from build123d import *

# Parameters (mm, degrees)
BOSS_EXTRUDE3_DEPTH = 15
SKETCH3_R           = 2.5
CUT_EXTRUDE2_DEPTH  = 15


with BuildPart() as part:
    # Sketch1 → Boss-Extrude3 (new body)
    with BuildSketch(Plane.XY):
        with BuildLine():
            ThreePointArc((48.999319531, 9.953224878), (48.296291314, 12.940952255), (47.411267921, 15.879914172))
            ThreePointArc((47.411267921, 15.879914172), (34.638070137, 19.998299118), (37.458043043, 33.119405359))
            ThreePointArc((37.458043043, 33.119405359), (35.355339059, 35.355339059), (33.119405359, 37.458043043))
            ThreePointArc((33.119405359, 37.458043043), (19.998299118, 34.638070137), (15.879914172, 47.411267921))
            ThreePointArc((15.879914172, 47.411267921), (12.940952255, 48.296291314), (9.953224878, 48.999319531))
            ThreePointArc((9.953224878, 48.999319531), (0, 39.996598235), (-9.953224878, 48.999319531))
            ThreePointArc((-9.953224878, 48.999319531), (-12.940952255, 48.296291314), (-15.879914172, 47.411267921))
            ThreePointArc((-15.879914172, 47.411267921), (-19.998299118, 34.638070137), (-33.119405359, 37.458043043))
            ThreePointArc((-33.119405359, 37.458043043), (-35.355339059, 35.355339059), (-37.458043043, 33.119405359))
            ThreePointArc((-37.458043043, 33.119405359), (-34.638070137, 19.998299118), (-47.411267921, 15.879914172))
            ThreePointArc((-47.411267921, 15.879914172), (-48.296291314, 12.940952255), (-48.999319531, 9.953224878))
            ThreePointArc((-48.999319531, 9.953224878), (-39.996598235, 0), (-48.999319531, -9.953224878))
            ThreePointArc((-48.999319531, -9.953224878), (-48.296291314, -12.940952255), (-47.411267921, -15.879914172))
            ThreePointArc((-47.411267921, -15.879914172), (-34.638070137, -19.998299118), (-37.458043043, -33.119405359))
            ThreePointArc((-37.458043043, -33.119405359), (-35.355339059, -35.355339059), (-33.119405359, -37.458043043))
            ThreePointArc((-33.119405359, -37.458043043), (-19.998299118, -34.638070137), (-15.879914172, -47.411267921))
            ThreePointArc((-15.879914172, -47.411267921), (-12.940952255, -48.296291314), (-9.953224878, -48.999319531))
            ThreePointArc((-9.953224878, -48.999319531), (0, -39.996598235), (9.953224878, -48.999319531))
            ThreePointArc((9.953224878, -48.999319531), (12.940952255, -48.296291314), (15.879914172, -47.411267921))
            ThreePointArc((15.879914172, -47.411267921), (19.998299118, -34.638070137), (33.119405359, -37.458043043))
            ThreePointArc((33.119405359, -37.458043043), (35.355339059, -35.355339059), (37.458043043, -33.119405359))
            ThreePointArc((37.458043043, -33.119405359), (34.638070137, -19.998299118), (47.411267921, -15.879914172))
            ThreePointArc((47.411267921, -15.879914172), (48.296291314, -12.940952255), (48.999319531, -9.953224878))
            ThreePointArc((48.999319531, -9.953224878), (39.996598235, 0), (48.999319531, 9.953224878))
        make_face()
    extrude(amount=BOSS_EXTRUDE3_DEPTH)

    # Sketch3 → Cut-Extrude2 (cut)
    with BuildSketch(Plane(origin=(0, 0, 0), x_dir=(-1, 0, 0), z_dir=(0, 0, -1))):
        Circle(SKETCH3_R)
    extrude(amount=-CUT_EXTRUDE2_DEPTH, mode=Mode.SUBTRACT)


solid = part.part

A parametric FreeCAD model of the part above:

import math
import FreeCAD as App
import Part
import Sketcher
from FreeCAD import Vector

doc = App.newDocument("Part")
params = doc.addObject("Spreadsheet::Sheet", "Params")
for row, (alias, value) in enumerate([
    ("sketch1_radius", "50 mm"),
    ("pad1_length", "15 mm"),
    ("sketch2_diameter", "5 mm"),
    ("pocket1_length", "15 mm"),
], start=1):
    params.set(f"A{row}", alias)
    params.set(f"B{row}", "=" + value)
    params.setAlias(f"B{row}", alias)

body = doc.addObject("PartDesign::Body", "Body")

# Sketch on XY plane
sketch1 = body.newObject("Sketcher::SketchObject", "Sketch")
sketch1.AttachmentSupport = (doc.getObject("XY_Plane"), [""])
sketch1.MapMode = "FlatFace"
sketch1.addGeometry([
    Part.ArcOfCircle(Part.Circle(Vector(0, 0, 0), Vector(0, 0, 1), 50), math.radians(11.48), math.radians(18.52)),  # 0
    Part.ArcOfCircle(Part.Circle(Vector(43, 25, 0), Vector(0, 0, 1), 10), math.radians(126), math.radians(294)),  # 1
    Part.ArcOfCircle(Part.Circle(Vector(0, 0, 0), Vector(0, 0, 1), 50), math.radians(41.48), math.radians(48.52)),  # 2
    Part.ArcOfCircle(Part.Circle(Vector(25, 43, 0), Vector(0, 0, 1), 10), math.radians(156), math.radians(324)),  # 3
    Part.ArcOfCircle(Part.Circle(Vector(0, 0, 0), Vector(0, 0, 1), 50), math.radians(71.48), math.radians(78.52)),  # 4
    Part.ArcOfCircle(Part.Circle(Vector(0, 50, 0), Vector(0, 0, 1), 10), math.radians(-174), math.radians(-6)),  # 5
    Part.ArcOfCircle(Part.Circle(Vector(0, 0, 0), Vector(0, 0, 1), 50), math.radians(101.48), math.radians(108.52)),  # 6
    Part.ArcOfCircle(Part.Circle(Vector(-25, 43, 0), Vector(0, 0, 1), 10), math.radians(-144), math.radians(24)),  # 7
    Part.ArcOfCircle(Part.Circle(Vector(0, 0, 0), Vector(0, 0, 1), 50), math.radians(131.48), math.radians(138.52)),  # 8
    Part.ArcOfCircle(Part.Circle(Vector(-43, 25, 0), Vector(0, 0, 1), 10), math.radians(-114), math.radians(54)),  # 9
    Part.ArcOfCircle(Part.Circle(Vector(0, 0, 0), Vector(0, 0, 1), 50), math.radians(161.48), math.radians(168.52)),  # 10
    Part.ArcOfCircle(Part.Circle(Vector(-50, 0, 0), Vector(0, 0, 1), 10), math.radians(-84), math.radians(84)),  # 11
    Part.ArcOfCircle(Part.Circle(Vector(0, 0, 0), Vector(0, 0, 1), 50), math.radians(-168.52), math.radians(-161.48)),  # 12
    Part.ArcOfCircle(Part.Circle(Vector(-43, -25, 0), Vector(0, 0, 1), 10), math.radians(-54), math.radians(114)),  # 13
    Part.ArcOfCircle(Part.Circle(Vector(0, 0, 0), Vector(0, 0, 1), 50), math.radians(-138.52), math.radians(-131.48)),  # 14
    Part.ArcOfCircle(Part.Circle(Vector(-25, -43, 0), Vector(0, 0, 1), 10), math.radians(-24), math.radians(144)),  # 15
    Part.ArcOfCircle(Part.Circle(Vector(0, 0, 0), Vector(0, 0, 1), 50), math.radians(-108.52), math.radians(-101.48)),  # 16
    Part.ArcOfCircle(Part.Circle(Vector(0, -50, 0), Vector(0, 0, 1), 10), math.radians(6), math.radians(174)),  # 17
    Part.ArcOfCircle(Part.Circle(Vector(0, 0, 0), Vector(0, 0, 1), 50), math.radians(-78.52), math.radians(-71.48)),  # 18
    Part.ArcOfCircle(Part.Circle(Vector(25, -43, 0), Vector(0, 0, 1), 10), math.radians(36), math.radians(204)),  # 19
    Part.ArcOfCircle(Part.Circle(Vector(0, 0, 0), Vector(0, 0, 1), 50), math.radians(-48.52), math.radians(-41.48)),  # 20
    Part.ArcOfCircle(Part.Circle(Vector(43, -25, 0), Vector(0, 0, 1), 10), math.radians(66), math.radians(234)),  # 21
    Part.ArcOfCircle(Part.Circle(Vector(0, 0, 0), Vector(0, 0, 1), 50), math.radians(-18.52), math.radians(-11.48)),  # 22
    Part.ArcOfCircle(Part.Circle(Vector(50, 0, 0), Vector(0, 0, 1), 10), math.radians(96), math.radians(264)),  # 23
], False)
sketch1.addConstraint([
    Sketcher.Constraint("Coincident", 0, 2, 1, 2),
    Sketcher.Constraint("Coincident", 1, 1, 2, 1),
    Sketcher.Constraint("Coincident", 2, 2, 3, 2),
    Sketcher.Constraint("Coincident", 3, 1, 4, 1),
    Sketcher.Constraint("Coincident", 4, 2, 5, 2),
    Sketcher.Constraint("Coincident", 5, 1, 6, 1),
    Sketcher.Constraint("Coincident", 6, 2, 7, 2),
    Sketcher.Constraint("Coincident", 7, 1, 8, 1),
    Sketcher.Constraint("Coincident", 8, 2, 9, 2),
    Sketcher.Constraint("Coincident", 9, 1, 10, 1),
    Sketcher.Constraint("Coincident", 10, 2, 11, 2),
    Sketcher.Constraint("Coincident", 11, 1, 12, 1),
    Sketcher.Constraint("Coincident", 12, 2, 13, 2),
    Sketcher.Constraint("Coincident", 13, 1, 14, 1),
    Sketcher.Constraint("Coincident", 14, 2, 15, 2),
    Sketcher.Constraint("Coincident", 15, 1, 16, 1),
    Sketcher.Constraint("Coincident", 16, 2, 17, 2),
    Sketcher.Constraint("Coincident", 17, 1, 18, 1),
    Sketcher.Constraint("Coincident", 18, 2, 19, 2),
    Sketcher.Constraint("Coincident", 19, 1, 20, 1),
    Sketcher.Constraint("Coincident", 20, 2, 21, 2),
    Sketcher.Constraint("Coincident", 21, 1, 22, 1),
    Sketcher.Constraint("Coincident", 22, 2, 23, 2),
    Sketcher.Constraint("Coincident", 23, 1, 0, 1),
    Sketcher.Constraint("Coincident", 0, 3, -1, 1),
    Sketcher.Constraint("Coincident", 2, 3, -1, 1),
    Sketcher.Constraint("Coincident", 4, 3, -1, 1),
    Sketcher.Constraint("Coincident", 6, 3, -1, 1),
    Sketcher.Constraint("Coincident", 8, 3, -1, 1),
    Sketcher.Constraint("Coincident", 10, 3, -1, 1),
    Sketcher.Constraint("Coincident", 12, 3, -1, 1),
    Sketcher.Constraint("Coincident", 14, 3, -1, 1),
    Sketcher.Constraint("Coincident", 16, 3, -1, 1),
    Sketcher.Constraint("Coincident", 18, 3, -1, 1),
    Sketcher.Constraint("Coincident", 20, 3, -1, 1),
    Sketcher.Constraint("Coincident", 22, 3, -1, 1),
    Sketcher.Constraint("Equal", 0, 2),
    Sketcher.Constraint("Equal", 1, 3),
    Sketcher.Constraint("Equal", 2, 4),
    Sketcher.Constraint("Equal", 3, 5),
    Sketcher.Constraint("Equal", 4, 6),
    Sketcher.Constraint("Equal", 5, 7),
    Sketcher.Constraint("Equal", 6, 8),
    Sketcher.Constraint("Equal", 7, 9),
    Sketcher.Constraint("Equal", 8, 10),
    Sketcher.Constraint("Equal", 9, 11),
    Sketcher.Constraint("Equal", 10, 12),
    Sketcher.Constraint("Equal", 11, 13),
    Sketcher.Constraint("Equal", 12, 14),
    Sketcher.Constraint("Equal", 13, 15),
    Sketcher.Constraint("Equal", 14, 16),
    Sketcher.Constraint("Equal", 15, 17),
    Sketcher.Constraint("Equal", 16, 18),
    Sketcher.Constraint("Equal", 17, 19),
    Sketcher.Constraint("Equal", 18, 20),
    Sketcher.Constraint("Equal", 19, 21),
    Sketcher.Constraint("Equal", 20, 22),
    Sketcher.Constraint("Equal", 21, 23),
    Sketcher.Constraint("Symmetric", 1, 3, 13, 3, -1, 1),
    Sketcher.Constraint("Symmetric", 3, 3, 15, 3, -1, 1),
    Sketcher.Constraint("Symmetric", 5, 3, 17, 3, -1, 1),
    Sketcher.Constraint("Symmetric", 7, 3, 19, 3, -1, 1),
    Sketcher.Constraint("Symmetric", 9, 3, 21, 3, -1, 1),
    Sketcher.Constraint("Symmetric", 11, 3, 23, 3, -1, 1),
    Sketcher.Constraint("Symmetric", 3, 3, 7, 3, -2),
    Sketcher.Constraint("Symmetric", 1, 3, 9, 3, -2),
    Sketcher.Constraint("PointOnObject", 5, 3, -2),
    Sketcher.Constraint("PointOnObject", 11, 3, -1),
    Sketcher.Constraint("Radius", 0, 50.0),
    Sketcher.Constraint("DistanceY", -1, 1, 1, 3, 25.0),
    Sketcher.Constraint("DistanceX", -1, 1, 3, 3, 25.0),
    Sketcher.Constraint("DistanceY", -1, 1, 5, 3, 50.0),
    Sketcher.Constraint("DistanceX", 11, 3, -1, 1, 50.0),
    Sketcher.Constraint("Radius", 1, 10.003402),
    Sketcher.Constraint("DistanceX", -1, 1, 1, 3, 43.30127),
    Sketcher.Constraint("DistanceY", -1, 1, 3, 3, 43.30127),
])
sketch1.setExpression("Constraints[68]", "Params.sketch1_radius")
pad1 = body.newObject("PartDesign::Pad", "Pad")
pad1.Profile = sketch1
pad1.setExpression("Length", "Params.pad1_length")

# Sketch on XY plane
sketch2 = body.newObject("Sketcher::SketchObject", "Sketch001")
sketch2.AttachmentSupport = (doc.getObject("XY_Plane"), [""])
sketch2.MapMode = "FlatFace"
sketch2.addGeometry(Part.Circle(Vector(0, 0, 0), Vector(0, 0, 1), 2.5), False)
sketch2.addConstraint([
    Sketcher.Constraint("Coincident", 0, 3, -1, 1),
    Sketcher.Constraint("Diameter", 0, 5.0),
])
sketch2.setExpression("Constraints[1]", "Params.sketch2_diameter")
pocket1 = body.newObject("PartDesign::Pocket", "Pocket")
pocket1.Profile = sketch2
pocket1.setExpression("Length", "Params.pocket1_length")
pocket1.Reversed = True

doc.recompute()
